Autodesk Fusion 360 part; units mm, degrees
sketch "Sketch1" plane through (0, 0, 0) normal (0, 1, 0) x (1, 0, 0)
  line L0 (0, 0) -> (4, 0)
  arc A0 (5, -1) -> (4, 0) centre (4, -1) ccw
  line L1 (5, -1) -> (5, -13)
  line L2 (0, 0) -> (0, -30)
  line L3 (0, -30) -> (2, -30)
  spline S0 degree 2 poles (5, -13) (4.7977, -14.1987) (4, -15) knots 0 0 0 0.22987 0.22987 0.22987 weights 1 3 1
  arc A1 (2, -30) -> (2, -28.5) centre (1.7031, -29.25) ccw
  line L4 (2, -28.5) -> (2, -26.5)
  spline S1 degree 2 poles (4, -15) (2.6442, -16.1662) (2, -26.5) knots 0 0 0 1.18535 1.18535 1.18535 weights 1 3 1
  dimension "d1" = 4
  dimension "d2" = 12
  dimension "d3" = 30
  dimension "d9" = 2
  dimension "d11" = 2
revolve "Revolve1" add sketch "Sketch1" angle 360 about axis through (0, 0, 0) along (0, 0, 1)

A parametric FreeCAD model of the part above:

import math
import FreeCAD as App
import Part
import Sketcher
Q = App.Units.Quantity

doc = App.newDocument("Part")
body = doc.addObject("PartDesign::Body", "Body")

# Sketch on XZ plane
sketch1 = doc.addObject("Sketcher::SketchObject", "Sketch")
body.addObject(sketch1)
sketch1.AttachmentSupport = (doc.XZ_Plane, [""])
sketch1.MapMode = "FlatFace"
sketch1.addGeometry([
    Part.LineSegment(App.Vector(4, 0, 0), App.Vector(0, 0, 0)),  # 0
    Part.LineSegment(App.Vector(0, 0, 0), App.Vector(0, 30, 0)),  # 1
    Part.LineSegment(App.Vector(0, 30, 0), App.Vector(2, 30, 0)),  # 2
    Part.ArcOfCircle(Part.Circle(App.Vector(1.7031, 29.25, 0), App.Vector(0, 0, 1), 0.806629), math.radians(-68.403038), math.radians(68.403038)),  # 3
    Part.LineSegment(App.Vector(2, 28.5, 0), App.Vector(2, 26.5, 0)),  # 4
    Part.BSplineCurve([App.Vector(4, 15, 0), App.Vector(2.6442, 16.1662, 0), App.Vector(2, 26.5, 0)], [3, 3], [0, 1.18535], False, 2, [1, 3, 1], False),  # 5
    Part.BSplineCurve([App.Vector(5, 13, 0), App.Vector(4.7977, 14.1987, 0), App.Vector(4, 15, 0)], [3, 3], [0, 0.22987], False, 2, [1, 3, 1], False),  # 6
    Part.LineSegment(App.Vector(5, 13, 0), App.Vector(5, 1, 0)),  # 7
    Part.ArcOfCircle(Part.Circle(App.Vector(4, 1, 0), App.Vector(0, 0, 1), 1), math.radians(-90), math.radians(0)),  # 8
], False)
sketch1.addConstraint([
    Sketcher.Constraint("Block", 5),
    Sketcher.Constraint("Block", 6),
    Sketcher.Constraint("Coincident", 0, 2, 1, 1),
    Sketcher.Constraint("Coincident", 1, 2, 2, 1),
    Sketcher.Constraint("Coincident", 2, 2, 3, 2),
    Sketcher.Constraint("Coincident", 3, 1, 4, 1),
    Sketcher.Constraint("Coincident", 4, 2, 5, 2),
    Sketcher.Constraint("Coincident", 6, 1, 7, 1),
    Sketcher.Constraint("Tangent", 7, 2, 8, 2),
    Sketcher.Constraint("Tangent", 8, 1, 0, 1),
    Sketcher.Constraint("Horizontal", 0),
    Sketcher.Constraint("Vertical", 1),
    Sketcher.Constraint("Horizontal", 2),
    Sketcher.Constraint("Vertical", 4),
    Sketcher.Constraint("Vertical", 7),
    Sketcher.Constraint("Coincident", 0, 2, -1, 1),
    Sketcher.Constraint("Vertical", 2, 2, 3, 1),
    Sketcher.Constraint("Equal", 2, 4),
    Sketcher.Constraint("Radius", 8, Q("1 mm")),
    Sketcher.Constraint("DistanceY", 1, 1, 1, 2, Q("30 mm")),
    Sketcher.Constraint("Radius", 3, Q("0.8066 mm")),
])
revolution = doc.addObject("PartDesign::Revolution", "Revolution")
body.addObject(revolution)
revolution.Profile = sketch1
revolution.ReferenceAxis = (sketch1, ["V_Axis"])
revolution.Angle = 360

doc.recompute()
